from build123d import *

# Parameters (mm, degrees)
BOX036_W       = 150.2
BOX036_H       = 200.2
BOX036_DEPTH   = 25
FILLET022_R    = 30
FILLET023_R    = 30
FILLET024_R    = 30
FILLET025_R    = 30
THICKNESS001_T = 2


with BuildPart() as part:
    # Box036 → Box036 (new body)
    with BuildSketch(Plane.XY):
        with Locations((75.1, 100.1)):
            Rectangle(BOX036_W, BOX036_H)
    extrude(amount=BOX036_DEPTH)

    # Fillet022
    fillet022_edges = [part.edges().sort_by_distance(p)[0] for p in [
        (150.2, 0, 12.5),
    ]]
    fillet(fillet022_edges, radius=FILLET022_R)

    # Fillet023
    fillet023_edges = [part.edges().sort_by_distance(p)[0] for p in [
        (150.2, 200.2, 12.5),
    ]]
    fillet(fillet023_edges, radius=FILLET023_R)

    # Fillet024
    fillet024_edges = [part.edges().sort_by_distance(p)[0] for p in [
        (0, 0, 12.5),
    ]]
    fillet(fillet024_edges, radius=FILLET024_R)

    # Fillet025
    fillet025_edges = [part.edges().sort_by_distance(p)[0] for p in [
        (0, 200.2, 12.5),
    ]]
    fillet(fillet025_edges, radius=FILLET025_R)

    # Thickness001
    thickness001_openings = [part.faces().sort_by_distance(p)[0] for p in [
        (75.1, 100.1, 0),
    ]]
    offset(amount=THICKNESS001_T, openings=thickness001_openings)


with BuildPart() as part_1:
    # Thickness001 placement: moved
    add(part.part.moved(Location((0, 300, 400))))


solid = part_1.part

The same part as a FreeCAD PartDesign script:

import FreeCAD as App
import Part
import Sketcher
from FreeCAD import Vector
Q = App.Units.Quantity


def edges_at(feature, points):
    """Names of the edges that pass closest to the given points."""
    edges = feature.Shape.Edges
    near = lambda p: min(range(len(edges)), key=lambda i: edges[i].distToShape(Part.Vertex(*p))[0])
    return sorted({f"Edge{near(p) + 1}" for p in points})


def faces_at(feature, points):
    """Names of the faces that lie closest to the given points."""
    faces = feature.Shape.Faces
    near = lambda p: min(range(len(faces)), key=lambda i: faces[i].distToShape(Part.Vertex(*p))[0])
    return sorted({f"Face{near(p) + 1}" for p in points})


def add_polygon(sketch, points):
    """Adds a closed chain of lines whose ends are joined by coincident constraints."""
    first, n = sketch.GeometryCount, len(points)
    for a, b in zip(points, points[1:] + points[:1]):
        sketch.addGeometry(Part.LineSegment(App.Vector(*a, 0), App.Vector(*b, 0)), False)
    for i in range(n):
        sketch.addConstraint(Sketcher.Constraint("Coincident", first + i, 2, first + (i + 1) % n, 1))

doc = App.newDocument("Part")
params = doc.addObject("Spreadsheet::Sheet", "Params")
for row, (alias, value) in enumerate([
    ("sketch1_width", "150.2 mm"),
    ("sketch1_height", "200.2 mm"),
    ("pad1_length", "25 mm"),
    ("fillet_radius", "30 mm"),
    ("fillet2_radius", "30 mm"),
    ("fillet3_radius", "30 mm"),
    ("fillet4_radius", "30 mm"),
    ("thickness_wall", "2 mm"),
], start=1):
    params.set(f"A{row}", alias)
    params.set(f"B{row}", "=" + value)
    params.setAlias(f"B{row}", alias)

body = doc.addObject("PartDesign::Body", "Body")

# Sketch on XY plane
sketch1 = body.newObject("Sketcher::SketchObject", "Sketch")
sketch1.AttachmentSupport = (doc.getObject("XY_Plane"), [""])
sketch1.MapMode = "FlatFace"
add_polygon(sketch1, [(0, 200), (0, 0), (150, 0), (150, 200)])  # lines 0-3
sketch1.addConstraint([
    Sketcher.Constraint("Vertical", 0),
    Sketcher.Constraint("Horizontal", 1),
    Sketcher.Constraint("Vertical", 2),
    Sketcher.Constraint("Horizontal", 3),
    Sketcher.Constraint("Coincident", 0, 2, -1, 1),
    Sketcher.Constraint("DistanceX", 1, 1, 1, 2, Q("150.2 mm")),
    Sketcher.Constraint("DistanceY", 0, 2, 0, 1, Q("200.2 mm")),
])
sketch1.setExpression("Constraints[9]", "Params.sketch1_width")
sketch1.setExpression("Constraints[10]", "Params.sketch1_height")
pad1 = body.newObject("PartDesign::Pad", "Pad")
pad1.Profile = sketch1
pad1.setExpression("Length", "Params.pad1_length")
doc.recompute()

fillet = body.newObject("PartDesign::Fillet", "Fillet")
fillet.Base = (pad1, edges_at(pad1, [(150.2, 0, 12.5)]))
fillet.setExpression("Radius", "Params.fillet_radius")
doc.recompute()

fillet2 = body.newObject("PartDesign::Fillet", "Fillet001")
fillet2.Base = (fillet, edges_at(fillet, [(150.2, 200.2, 12.5)]))
fillet2.setExpression("Radius", "Params.fillet2_radius")
doc.recompute()

fillet3 = body.newObject("PartDesign::Fillet", "Fillet002")
fillet3.Base = (fillet2, edges_at(fillet2, [(0, 0, 12.5)]))
fillet3.setExpression("Radius", "Params.fillet3_radius")
doc.recompute()

fillet4 = body.newObject("PartDesign::Fillet", "Fillet003")
fillet4.Base = (fillet3, edges_at(fillet3, [(0, 200.2, 12.5)]))
fillet4.setExpression("Radius", "Params.fillet4_radius")
doc.recompute()

thickness = body.newObject("PartDesign::Thickness", "Thickness")
thickness.Base = (fillet4, faces_at(fillet4, [(75.1, 100.1, 0)]))
thickness.setExpression("Value", "Params.thickness_wall")
thickness.Reversed = False
thickness.Join = "Arc"
body2 = doc.addObject("PartDesign::Body", "Body001")
doc.recompute()

body.Placement = App.Placement(Vector(0, 300, 400), App.Rotation(Vector(0, 0, 1), 0))
boolean = body2.newObject("PartDesign::Boolean", "Boolean")
boolean.Type = "Fuse"
boolean.addObjects([body])

doc.recompute()
